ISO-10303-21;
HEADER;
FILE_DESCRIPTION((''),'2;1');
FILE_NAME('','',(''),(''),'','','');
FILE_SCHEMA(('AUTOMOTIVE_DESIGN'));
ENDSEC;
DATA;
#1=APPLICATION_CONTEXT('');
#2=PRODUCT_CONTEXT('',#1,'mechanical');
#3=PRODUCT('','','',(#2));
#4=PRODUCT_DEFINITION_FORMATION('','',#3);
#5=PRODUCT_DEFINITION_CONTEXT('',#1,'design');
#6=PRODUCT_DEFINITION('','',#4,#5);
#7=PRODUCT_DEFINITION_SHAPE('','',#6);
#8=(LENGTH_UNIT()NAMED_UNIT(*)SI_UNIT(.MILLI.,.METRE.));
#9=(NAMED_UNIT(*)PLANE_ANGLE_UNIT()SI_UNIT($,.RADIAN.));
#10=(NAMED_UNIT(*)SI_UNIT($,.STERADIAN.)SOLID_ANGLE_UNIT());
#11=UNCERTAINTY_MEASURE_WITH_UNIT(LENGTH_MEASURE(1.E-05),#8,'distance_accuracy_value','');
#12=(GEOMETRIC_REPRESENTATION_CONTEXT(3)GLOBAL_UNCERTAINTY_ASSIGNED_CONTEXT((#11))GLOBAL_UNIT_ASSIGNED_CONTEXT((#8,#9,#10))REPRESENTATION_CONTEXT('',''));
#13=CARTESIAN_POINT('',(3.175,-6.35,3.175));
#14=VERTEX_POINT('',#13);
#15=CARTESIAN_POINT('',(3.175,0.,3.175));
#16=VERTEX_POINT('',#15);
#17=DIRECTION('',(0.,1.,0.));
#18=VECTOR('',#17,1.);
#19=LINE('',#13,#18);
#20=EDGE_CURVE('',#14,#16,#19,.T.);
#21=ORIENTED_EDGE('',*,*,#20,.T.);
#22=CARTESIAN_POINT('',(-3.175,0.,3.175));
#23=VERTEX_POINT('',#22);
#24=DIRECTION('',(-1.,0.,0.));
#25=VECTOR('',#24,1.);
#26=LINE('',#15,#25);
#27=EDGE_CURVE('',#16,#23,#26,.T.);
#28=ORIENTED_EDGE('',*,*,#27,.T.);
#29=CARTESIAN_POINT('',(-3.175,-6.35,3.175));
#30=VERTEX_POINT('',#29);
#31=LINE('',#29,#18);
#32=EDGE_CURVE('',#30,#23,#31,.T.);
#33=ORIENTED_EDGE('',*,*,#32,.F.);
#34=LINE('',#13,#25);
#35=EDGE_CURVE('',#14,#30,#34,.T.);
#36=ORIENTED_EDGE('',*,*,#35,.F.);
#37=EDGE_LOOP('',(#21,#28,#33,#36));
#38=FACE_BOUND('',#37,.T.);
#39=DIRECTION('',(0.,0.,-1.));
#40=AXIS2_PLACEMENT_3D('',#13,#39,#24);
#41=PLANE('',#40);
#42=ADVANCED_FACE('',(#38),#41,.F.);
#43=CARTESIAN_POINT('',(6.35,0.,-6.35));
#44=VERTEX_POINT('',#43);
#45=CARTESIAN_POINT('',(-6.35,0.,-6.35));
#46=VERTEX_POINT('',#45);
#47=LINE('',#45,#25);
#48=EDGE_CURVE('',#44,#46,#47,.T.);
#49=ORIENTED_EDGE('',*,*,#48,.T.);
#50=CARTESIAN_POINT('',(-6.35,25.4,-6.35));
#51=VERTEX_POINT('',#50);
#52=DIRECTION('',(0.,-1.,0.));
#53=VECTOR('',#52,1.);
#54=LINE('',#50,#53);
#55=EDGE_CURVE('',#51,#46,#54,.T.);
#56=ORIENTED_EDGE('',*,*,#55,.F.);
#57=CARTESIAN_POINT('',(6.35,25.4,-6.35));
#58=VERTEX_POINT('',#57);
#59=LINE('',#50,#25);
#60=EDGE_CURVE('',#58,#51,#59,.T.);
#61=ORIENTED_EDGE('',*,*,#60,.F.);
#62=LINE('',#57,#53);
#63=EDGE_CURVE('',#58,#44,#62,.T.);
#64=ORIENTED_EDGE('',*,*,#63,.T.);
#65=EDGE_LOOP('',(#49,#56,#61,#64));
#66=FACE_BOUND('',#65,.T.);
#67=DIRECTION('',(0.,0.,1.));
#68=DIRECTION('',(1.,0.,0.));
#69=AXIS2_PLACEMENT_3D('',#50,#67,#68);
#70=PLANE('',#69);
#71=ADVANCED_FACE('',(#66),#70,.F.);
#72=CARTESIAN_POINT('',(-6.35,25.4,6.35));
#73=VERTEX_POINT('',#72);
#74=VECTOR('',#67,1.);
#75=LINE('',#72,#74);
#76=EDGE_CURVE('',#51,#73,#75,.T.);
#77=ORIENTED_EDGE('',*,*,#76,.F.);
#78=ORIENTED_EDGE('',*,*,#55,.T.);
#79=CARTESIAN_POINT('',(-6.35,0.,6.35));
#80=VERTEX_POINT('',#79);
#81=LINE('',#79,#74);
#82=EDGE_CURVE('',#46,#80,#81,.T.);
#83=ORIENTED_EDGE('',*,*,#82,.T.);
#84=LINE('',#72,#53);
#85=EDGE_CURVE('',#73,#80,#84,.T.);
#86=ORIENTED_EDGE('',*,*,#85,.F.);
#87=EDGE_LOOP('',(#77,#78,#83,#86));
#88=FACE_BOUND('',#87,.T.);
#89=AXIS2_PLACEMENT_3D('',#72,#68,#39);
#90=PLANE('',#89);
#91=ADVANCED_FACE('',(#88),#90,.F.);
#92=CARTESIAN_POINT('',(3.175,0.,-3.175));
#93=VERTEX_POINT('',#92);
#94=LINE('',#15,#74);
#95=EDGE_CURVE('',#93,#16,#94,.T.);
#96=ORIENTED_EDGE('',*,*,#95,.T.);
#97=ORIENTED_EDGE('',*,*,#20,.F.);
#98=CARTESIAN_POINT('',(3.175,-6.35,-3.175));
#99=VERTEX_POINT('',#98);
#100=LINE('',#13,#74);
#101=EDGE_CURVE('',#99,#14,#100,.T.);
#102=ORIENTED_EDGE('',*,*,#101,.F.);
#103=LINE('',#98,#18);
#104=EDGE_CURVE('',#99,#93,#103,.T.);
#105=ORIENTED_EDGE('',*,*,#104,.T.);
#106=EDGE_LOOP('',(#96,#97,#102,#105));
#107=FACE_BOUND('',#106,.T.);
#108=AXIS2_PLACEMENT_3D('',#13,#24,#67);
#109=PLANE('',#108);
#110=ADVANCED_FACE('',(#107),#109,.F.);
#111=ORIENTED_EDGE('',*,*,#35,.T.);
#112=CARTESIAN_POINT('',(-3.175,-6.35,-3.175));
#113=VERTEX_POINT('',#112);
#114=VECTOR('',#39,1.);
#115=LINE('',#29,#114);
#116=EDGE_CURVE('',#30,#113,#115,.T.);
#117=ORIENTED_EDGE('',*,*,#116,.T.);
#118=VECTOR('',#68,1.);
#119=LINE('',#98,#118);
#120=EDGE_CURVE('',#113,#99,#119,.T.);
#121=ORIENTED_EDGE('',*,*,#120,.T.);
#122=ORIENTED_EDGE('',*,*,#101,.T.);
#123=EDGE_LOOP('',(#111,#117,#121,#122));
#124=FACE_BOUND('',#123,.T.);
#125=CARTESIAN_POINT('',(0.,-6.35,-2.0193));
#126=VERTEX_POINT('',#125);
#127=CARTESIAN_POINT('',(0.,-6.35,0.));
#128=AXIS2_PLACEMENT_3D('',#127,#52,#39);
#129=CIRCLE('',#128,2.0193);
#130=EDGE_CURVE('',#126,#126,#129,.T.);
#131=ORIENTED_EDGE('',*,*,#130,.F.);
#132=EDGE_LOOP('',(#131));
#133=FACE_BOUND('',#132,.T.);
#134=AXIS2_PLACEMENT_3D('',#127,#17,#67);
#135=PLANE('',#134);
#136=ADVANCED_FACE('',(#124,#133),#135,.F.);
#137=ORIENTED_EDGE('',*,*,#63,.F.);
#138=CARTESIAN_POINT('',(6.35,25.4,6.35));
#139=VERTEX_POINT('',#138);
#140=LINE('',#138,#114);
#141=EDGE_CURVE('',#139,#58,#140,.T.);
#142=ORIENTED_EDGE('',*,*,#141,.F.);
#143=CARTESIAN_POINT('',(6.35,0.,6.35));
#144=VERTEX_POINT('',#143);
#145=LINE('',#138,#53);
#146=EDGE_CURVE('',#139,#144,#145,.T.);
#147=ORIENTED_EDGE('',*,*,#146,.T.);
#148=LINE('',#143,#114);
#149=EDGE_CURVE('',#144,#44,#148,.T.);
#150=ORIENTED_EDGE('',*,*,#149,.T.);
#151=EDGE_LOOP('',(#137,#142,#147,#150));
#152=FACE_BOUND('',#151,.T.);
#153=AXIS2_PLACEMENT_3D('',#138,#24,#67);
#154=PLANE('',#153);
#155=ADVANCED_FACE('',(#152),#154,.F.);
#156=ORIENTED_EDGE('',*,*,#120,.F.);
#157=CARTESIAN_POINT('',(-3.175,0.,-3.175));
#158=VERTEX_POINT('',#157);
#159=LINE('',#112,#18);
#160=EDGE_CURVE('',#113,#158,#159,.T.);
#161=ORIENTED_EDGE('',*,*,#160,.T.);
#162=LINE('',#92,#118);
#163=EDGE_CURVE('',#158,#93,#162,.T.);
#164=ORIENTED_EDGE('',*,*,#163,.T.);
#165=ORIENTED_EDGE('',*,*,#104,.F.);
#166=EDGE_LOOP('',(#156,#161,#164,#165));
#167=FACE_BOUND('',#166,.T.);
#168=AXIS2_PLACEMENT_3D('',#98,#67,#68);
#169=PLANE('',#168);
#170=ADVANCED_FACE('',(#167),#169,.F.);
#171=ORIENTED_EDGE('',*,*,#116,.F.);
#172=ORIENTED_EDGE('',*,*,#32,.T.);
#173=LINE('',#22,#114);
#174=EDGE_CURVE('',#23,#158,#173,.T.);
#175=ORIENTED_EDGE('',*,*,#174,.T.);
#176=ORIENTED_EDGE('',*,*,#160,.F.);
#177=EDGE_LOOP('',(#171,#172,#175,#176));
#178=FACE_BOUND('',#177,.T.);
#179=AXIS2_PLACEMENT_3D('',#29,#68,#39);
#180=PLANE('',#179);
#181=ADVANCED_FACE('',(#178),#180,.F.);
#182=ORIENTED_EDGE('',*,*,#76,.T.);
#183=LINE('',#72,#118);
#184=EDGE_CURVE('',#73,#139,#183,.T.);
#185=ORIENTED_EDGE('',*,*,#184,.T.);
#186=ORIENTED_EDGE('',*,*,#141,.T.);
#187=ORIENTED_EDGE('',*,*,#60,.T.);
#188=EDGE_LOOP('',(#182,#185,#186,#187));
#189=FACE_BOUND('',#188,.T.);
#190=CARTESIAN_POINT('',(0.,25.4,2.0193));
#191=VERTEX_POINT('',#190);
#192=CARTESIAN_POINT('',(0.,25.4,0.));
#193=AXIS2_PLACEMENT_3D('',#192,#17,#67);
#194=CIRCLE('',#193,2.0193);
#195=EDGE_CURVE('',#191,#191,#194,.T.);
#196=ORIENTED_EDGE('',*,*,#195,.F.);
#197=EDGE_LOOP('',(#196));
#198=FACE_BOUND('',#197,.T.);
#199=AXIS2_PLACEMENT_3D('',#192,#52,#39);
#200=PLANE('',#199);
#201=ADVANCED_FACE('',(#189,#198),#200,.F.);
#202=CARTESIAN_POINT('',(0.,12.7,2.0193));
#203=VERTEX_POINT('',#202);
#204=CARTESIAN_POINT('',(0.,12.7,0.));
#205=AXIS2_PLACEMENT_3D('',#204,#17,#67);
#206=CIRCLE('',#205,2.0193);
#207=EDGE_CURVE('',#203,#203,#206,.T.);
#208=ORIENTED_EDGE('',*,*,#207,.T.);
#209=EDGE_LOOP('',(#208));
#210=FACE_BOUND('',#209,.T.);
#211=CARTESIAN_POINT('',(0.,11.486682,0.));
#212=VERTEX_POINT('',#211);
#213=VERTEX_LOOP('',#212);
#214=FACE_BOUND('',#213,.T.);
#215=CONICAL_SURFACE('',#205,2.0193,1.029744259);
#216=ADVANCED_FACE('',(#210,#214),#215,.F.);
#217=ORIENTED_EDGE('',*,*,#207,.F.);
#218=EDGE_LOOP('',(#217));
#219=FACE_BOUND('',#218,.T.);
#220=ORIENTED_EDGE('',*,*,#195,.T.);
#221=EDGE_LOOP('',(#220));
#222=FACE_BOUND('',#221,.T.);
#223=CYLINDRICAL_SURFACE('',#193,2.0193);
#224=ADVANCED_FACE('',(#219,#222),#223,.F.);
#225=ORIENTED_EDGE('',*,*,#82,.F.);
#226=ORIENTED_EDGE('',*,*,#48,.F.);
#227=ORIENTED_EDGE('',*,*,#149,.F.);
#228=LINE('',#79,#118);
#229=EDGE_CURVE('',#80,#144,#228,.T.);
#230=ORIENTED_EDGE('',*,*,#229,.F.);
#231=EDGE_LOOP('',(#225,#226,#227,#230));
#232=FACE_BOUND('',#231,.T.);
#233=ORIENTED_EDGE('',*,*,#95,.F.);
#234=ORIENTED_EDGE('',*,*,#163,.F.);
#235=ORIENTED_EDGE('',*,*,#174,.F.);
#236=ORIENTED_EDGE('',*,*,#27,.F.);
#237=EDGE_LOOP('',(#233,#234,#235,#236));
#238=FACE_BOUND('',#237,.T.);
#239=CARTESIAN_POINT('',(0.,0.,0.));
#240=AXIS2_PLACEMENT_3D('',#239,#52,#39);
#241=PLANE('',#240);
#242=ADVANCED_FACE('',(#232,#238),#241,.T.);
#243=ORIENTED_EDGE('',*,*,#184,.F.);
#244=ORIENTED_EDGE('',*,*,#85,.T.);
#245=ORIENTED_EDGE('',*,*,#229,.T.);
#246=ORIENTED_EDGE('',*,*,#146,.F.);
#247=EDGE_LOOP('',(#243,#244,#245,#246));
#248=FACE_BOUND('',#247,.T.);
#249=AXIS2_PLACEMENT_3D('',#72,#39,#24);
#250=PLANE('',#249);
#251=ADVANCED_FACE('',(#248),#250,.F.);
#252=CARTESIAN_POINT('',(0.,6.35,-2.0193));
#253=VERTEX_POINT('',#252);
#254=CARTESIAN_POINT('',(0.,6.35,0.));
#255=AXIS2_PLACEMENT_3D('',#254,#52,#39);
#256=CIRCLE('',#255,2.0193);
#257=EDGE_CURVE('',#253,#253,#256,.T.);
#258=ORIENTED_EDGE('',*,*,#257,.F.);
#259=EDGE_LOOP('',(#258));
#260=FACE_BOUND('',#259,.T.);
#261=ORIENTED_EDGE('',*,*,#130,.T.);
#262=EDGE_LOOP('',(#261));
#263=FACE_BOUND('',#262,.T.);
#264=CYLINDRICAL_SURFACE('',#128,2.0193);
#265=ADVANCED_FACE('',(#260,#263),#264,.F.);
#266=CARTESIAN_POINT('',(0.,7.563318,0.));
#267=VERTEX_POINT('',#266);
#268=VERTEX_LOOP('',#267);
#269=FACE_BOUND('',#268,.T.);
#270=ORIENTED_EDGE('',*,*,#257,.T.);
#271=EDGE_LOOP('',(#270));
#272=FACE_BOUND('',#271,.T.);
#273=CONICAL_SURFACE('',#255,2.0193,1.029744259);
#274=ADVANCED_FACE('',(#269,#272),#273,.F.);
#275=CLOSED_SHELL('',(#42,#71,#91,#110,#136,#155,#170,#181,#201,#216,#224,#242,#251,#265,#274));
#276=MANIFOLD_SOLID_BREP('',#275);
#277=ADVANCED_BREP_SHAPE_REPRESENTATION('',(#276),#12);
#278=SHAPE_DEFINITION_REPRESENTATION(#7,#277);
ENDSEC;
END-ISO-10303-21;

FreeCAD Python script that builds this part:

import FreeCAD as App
import Part
import Sketcher
from FreeCAD import Vector
Q = App.Units.Quantity

doc = App.newDocument("Part")
body = doc.addObject("PartDesign::Body", "Body")

sketch1 = body.newObject("Sketcher::SketchObject", "Sketch")
sketch1.AttachmentSupport = (doc.getObject("XZ_Plane"), [""])
sketch1.MapMode = "FlatFace"
sketch1.addGeometry([
    Part.LineSegment(Vector(-6.35, -6.35, 0), Vector(-6.35, 6.35, 0)),
    Part.LineSegment(Vector(-6.35, 6.35, 0), Vector(6.35, 6.35, 0)),
    Part.LineSegment(Vector(6.35, 6.35, 0), Vector(6.35, -6.35, 0)),
    Part.LineSegment(Vector(6.35, -6.35, 0), Vector(-6.35, -6.35, 0)),
], False)
sketch1.addConstraint([
    Sketcher.Constraint("Coincident", 0, 2, 1, 1),
    Sketcher.Constraint("Coincident", 1, 2, 2, 1),
    Sketcher.Constraint("Coincident", 2, 2, 3, 1),
    Sketcher.Constraint("Coincident", 3, 2, 0, 1),
    Sketcher.Constraint("Vertical", 0),
    Sketcher.Constraint("Horizontal", 1),
    Sketcher.Constraint("Vertical", 2),
    Sketcher.Constraint("Horizontal", 3),
    Sketcher.Constraint("Symmetric", 0, 2, 2, 2, -1, 1),
    Sketcher.Constraint("Equal", 3, 0),
    Sketcher.Constraint("DistanceX", 1, 1, 1, 2, Q("0.5 in")),
])
pad1 = body.newObject("PartDesign::Pad", "Pad")
pad1.Profile = sketch1
pad1.Length = Q("1 in")
pad1.Reversed = True

sketch2 = body.newObject("Sketcher::SketchObject", "Sketch001")
sketch2.AttachmentSupport = (doc.getObject("XZ_Plane"), [""])
sketch2.MapMode = "FlatFace"
sketch2.addGeometry([
    Part.LineSegment(Vector(-3.175, 3.175, 0), Vector(-3.175, -3.175, 0)),
    Part.LineSegment(Vector(-3.175, -3.175, 0), Vector(3.175, -3.175, 0)),
    Part.LineSegment(Vector(3.175, -3.175, 0), Vector(3.175, 3.175, 0)),
    Part.LineSegment(Vector(3.175, 3.175, 0), Vector(-3.175, 3.175, 0)),
], False)
sketch2.addConstraint([
    Sketcher.Constraint("Coincident", 0, 2, 1, 1),
    Sketcher.Constraint("Coincident", 1, 2, 2, 1),
    Sketcher.Constraint("Coincident", 2, 2, 3, 1),
    Sketcher.Constraint("Coincident", 3, 2, 0, 1),
    Sketcher.Constraint("Vertical", 0),
    Sketcher.Constraint("Horizontal", 1),
    Sketcher.Constraint("Vertical", 2),
    Sketcher.Constraint("Horizontal", 3),
    Sketcher.Constraint("Symmetric", 0, 2, 2, 2, -1, 1),
    Sketcher.Constraint("Equal", 3, 0),
    Sketcher.Constraint("DistanceX", 1, 1, 1, 2, Q("0.25 in")),
])
pad2 = body.newObject("PartDesign::Pad", "Pad001")
pad2.Profile = sketch2
pad2.Length = Q("0.25 in")

sketch3 = body.newObject("Sketcher::SketchObject", "Sketch002")
sketch3.AttachmentSupport = (doc.getObject("XZ_Plane"), [""])
sketch3.MapMode = "FlatFace"
sketch3.AttachmentOffset = App.Placement(Vector(0, 0, 0.25 * 25.4), App.Rotation())
sketch3.addGeometry(Part.Circle(Vector(0, 0, 0), Vector(0, 0, 1), 2.0193), False)
sketch3.addConstraint([
    Sketcher.Constraint("Coincident", 0, 3, -1, 1),
    Sketcher.Constraint("Diameter", 0, Q("0.159 in")),
])
doc.recompute()
hole = body.newObject("PartDesign::Hole", "Hole")
hole.Profile = sketch3
hole.ThreadType = "None"
hole.Diameter = Q("0.159 in")
hole.DepthType = "Dimension"
hole.Depth = Q("0.5 in")
hole.DrillPoint = "Angled"
hole.DrillPointAngle = 118

sketch4 = body.newObject("Sketcher::SketchObject", "Sketch003")
sketch4.AttachmentSupport = (doc.getObject("XZ_Plane"), [""])
sketch4.MapMode = "FlatFace"
sketch4.AttachmentOffset = App.Placement(Vector(0, 0, -1 * 25.4), App.Rotation())
sketch4.addGeometry(Part.Circle(Vector(0, 0, 0), Vector(0, 0, 1), 2.0193), False)
sketch4.addConstraint([
    Sketcher.Constraint("Coincident", 0, 3, -1, 1),
    Sketcher.Constraint("Diameter", 0, Q("0.159 in")),
])
doc.recompute()
hole2 = body.newObject("PartDesign::Hole", "Hole001")
hole2.Profile = sketch4
hole2.ThreadType = "None"
hole2.Diameter = Q("0.159 in")
hole2.DepthType = "Dimension"
hole2.Depth = Q("0.5 in")
hole2.DrillPoint = "Angled"
hole2.DrillPointAngle = 118
hole2.Reversed = True

doc.recompute()
